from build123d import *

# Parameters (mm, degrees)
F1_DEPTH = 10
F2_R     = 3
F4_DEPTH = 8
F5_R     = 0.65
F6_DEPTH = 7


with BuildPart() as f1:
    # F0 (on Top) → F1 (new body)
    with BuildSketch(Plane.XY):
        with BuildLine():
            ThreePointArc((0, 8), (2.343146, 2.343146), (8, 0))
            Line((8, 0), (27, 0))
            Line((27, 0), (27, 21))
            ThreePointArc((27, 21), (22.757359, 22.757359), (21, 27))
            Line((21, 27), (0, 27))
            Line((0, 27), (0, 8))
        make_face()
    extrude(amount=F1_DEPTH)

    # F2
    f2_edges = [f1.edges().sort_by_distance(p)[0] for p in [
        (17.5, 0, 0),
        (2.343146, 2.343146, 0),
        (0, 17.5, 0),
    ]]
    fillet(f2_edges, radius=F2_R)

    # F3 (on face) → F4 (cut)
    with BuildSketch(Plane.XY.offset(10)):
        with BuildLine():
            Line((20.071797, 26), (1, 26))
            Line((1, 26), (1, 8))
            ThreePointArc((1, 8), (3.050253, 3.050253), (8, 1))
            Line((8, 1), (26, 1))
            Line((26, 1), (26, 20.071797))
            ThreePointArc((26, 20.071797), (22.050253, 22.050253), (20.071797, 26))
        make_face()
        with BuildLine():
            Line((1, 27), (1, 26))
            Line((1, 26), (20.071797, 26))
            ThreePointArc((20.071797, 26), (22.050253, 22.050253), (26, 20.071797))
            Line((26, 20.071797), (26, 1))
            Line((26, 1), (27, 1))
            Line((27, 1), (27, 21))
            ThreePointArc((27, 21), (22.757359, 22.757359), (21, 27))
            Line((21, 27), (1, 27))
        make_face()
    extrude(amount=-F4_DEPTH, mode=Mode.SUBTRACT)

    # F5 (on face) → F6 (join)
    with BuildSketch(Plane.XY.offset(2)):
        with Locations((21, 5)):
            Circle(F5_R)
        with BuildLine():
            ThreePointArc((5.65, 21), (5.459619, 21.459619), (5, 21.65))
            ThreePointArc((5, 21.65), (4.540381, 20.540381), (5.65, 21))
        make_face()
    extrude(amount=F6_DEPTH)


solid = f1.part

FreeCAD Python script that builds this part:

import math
import FreeCAD as App
import Part
import Sketcher

V = App.Vector
Q = App.Units.Quantity


def edges_at(feature, points):
    """Names of the edges that pass closest to the given points."""
    edges = feature.Shape.Edges
    near = lambda p: min(range(len(edges)), key=lambda i: edges[i].distToShape(Part.Vertex(*p))[0])
    return sorted({f"Edge{near(p) + 1}" for p in points})

doc = App.newDocument("Part")
body = doc.addObject("PartDesign::Body", "Body")

sketch1 = doc.addObject("Sketcher::SketchObject", "Sketch")
body.addObject(sketch1)
sketch1.AttachmentSupport = (doc.XY_Plane, [""])
sketch1.MapMode = "FlatFace"
sketch1.addGeometry(Part.ArcOfCircle(Part.Circle(V(8, 8, 0), V(0, 0, 1), 8), math.radians(-180), math.radians(-90)), False)
sketch1.addGeometry(Part.LineSegment(V(8, 0, 0), V(27, 0, 0)), False)
sketch1.addGeometry(Part.LineSegment(V(27, 0, 0), V(27, 21, 0)), False)
sketch1.addGeometry(Part.ArcOfCircle(Part.Circle(V(27, 27, 0), V(0, 0, 1), 6), math.radians(180), math.radians(270)), False)
sketch1.addGeometry(Part.LineSegment(V(21, 27, 0), V(0, 27, 0)), False)
sketch1.addGeometry(Part.LineSegment(V(0, 27, 0), V(0, 8, 0)), False)
sketch1.addConstraint(Sketcher.Constraint("Tangent", 0, 2, 1, 1))
sketch1.addConstraint(Sketcher.Constraint("Coincident", 1, 2, 2, 1))
sketch1.addConstraint(Sketcher.Constraint("Coincident", 2, 2, 3, 2))
sketch1.addConstraint(Sketcher.Constraint("Coincident", 3, 1, 4, 1))
sketch1.addConstraint(Sketcher.Constraint("Coincident", 4, 2, 5, 1))
sketch1.addConstraint(Sketcher.Constraint("Tangent", 5, 2, 0, 1))
sketch1.addConstraint(Sketcher.Constraint("Horizontal", 1))
sketch1.addConstraint(Sketcher.Constraint("Vertical", 2))
sketch1.addConstraint(Sketcher.Constraint("Horizontal", 4))
sketch1.addConstraint(Sketcher.Constraint("Vertical", 5))
sketch1.addConstraint(Sketcher.Constraint("PointOnObject", 0, 2, -1))
sketch1.addConstraint(Sketcher.Constraint("PointOnObject", 4, 2, -2))
sketch1.addConstraint(Sketcher.Constraint("Vertical", 3, 3, 1, 2))
sketch1.addConstraint(Sketcher.Constraint("Equal", 4, 2))
sketch1.addConstraint(Sketcher.Constraint("Equal", 1, 5))
sketch1.addConstraint(Sketcher.Constraint("Radius", 0, Q("8.000001 mm")))
sketch1.addConstraint(Sketcher.Constraint("Radius", 3, Q("5.999999 mm")))
sketch1.addConstraint(Sketcher.Constraint("DistanceX", 1, 1, 1, 2, Q("19 mm")))
pad1 = doc.addObject("PartDesign::Pad", "Pad")
body.addObject(pad1)
pad1.Profile = sketch1
pad1.Length = 10
doc.recompute()

fillet = doc.addObject("PartDesign::Fillet", "Fillet")
body.addObject(fillet)
fillet.Base = (pad1, edges_at(pad1, [(17.5, 0, 0), (2.343, 2.343, 0), (0, 17.5, 0)]))
fillet.Radius = 3

sketch2 = doc.addObject("Sketcher::SketchObject", "Sketch001")
body.addObject(sketch2)
sketch2.AttachmentSupport = (doc.XY_Plane, [""])
sketch2.MapMode = "FlatFace"
sketch2.AttachmentOffset = App.Placement(V(0, 0, 10), App.Rotation())
sketch2.addGeometry(Part.ArcOfCircle(Part.Circle(V(8, 8, 0), V(0, 0, 1), 7), math.radians(-180), math.radians(-90)), False)
sketch2.addGeometry(Part.LineSegment(V(8, 1, 0), V(27, 1, 0)), False)
sketch2.addGeometry(Part.LineSegment(V(27, 1, 0), V(27, 21, 0)), False)
sketch2.addGeometry(Part.ArcOfCircle(Part.Circle(V(27, 27, 0), V(0, 0, 1), 6), math.radians(180), math.radians(270)), False)
sketch2.addGeometry(Part.LineSegment(V(21, 27, 0), V(1, 27, 0)), False)
sketch2.addGeometry(Part.LineSegment(V(1, 27, 0), V(1, 8, 0)), False)
sketch2.addConstraint(Sketcher.Constraint("Tangent", 0, 2, 1, 1))
sketch2.addConstraint(Sketcher.Constraint("Coincident", 1, 2, 2, 1))
sketch2.addConstraint(Sketcher.Constraint("Coincident", 2, 2, 3, 2))
sketch2.addConstraint(Sketcher.Constraint("Coincident", 3, 1, 4, 1))
sketch2.addConstraint(Sketcher.Constraint("Coincident", 4, 2, 5, 1))
sketch2.addConstraint(Sketcher.Constraint("Tangent", 5, 2, 0, 1))
sketch2.addConstraint(Sketcher.Constraint("Horizontal", 1))
sketch2.addConstraint(Sketcher.Constraint("Vertical", 2))
sketch2.addConstraint(Sketcher.Constraint("Horizontal", 4))
sketch2.addConstraint(Sketcher.Constraint("Vertical", 5))
sketch2.addConstraint(Sketcher.Constraint("Vertical", 3, 3, 1, 2))
sketch2.addConstraint(Sketcher.Constraint("Equal", 4, 2))
sketch2.addConstraint(Sketcher.Constraint("Equal", 1, 5))
sketch2.addConstraint(Sketcher.Constraint("Radius", 0, Q("7.000002 mm")))
sketch2.addConstraint(Sketcher.Constraint("Radius", 3, Q("5.999999 mm")))
sketch2.addConstraint(Sketcher.Constraint("DistanceX", 1, 1, 1, 2, Q("19 mm")))
sketch2.addConstraint(Sketcher.Constraint("DistanceX", -1, 1, 0, 3, Q("8.000002 mm")))
sketch2.addConstraint(Sketcher.Constraint("DistanceY", -1, 1, 0, 3, Q("8.000002 mm")))
pocket1 = doc.addObject("PartDesign::Pocket", "Pocket")
body.addObject(pocket1)
pocket1.Profile = sketch2
pocket1.Length = 8

sketch3 = doc.addObject("Sketcher::SketchObject", "Sketch002")
body.addObject(sketch3)
sketch3.AttachmentSupport = (doc.XY_Plane, [""])
sketch3.MapMode = "FlatFace"
sketch3.AttachmentOffset = App.Placement(V(0, 0, 2), App.Rotation())
sketch3.addGeometry(Part.Circle(V(21, 5, 0), V(0, 0, 1), 0.7), False)
sketch3.addGeometry(Part.ArcOfCircle(Part.Circle(V(5, 21, 0), V(0, 0, 1), 0.7), math.radians(0), math.radians(90)), False)
sketch3.addGeometry(Part.ArcOfCircle(Part.Circle(V(5, 21, 0), V(0, 0, 1), 0.6), math.radians(90), math.radians(360)), False)
sketch3.addConstraint(Sketcher.Constraint("Coincident", 1, 1, 2, 2))
sketch3.addConstraint(Sketcher.Constraint("Coincident", 2, 1, 1, 2))
sketch3.addConstraint(Sketcher.Constraint("Equal", 0, 1))
sketch3.addConstraint(Sketcher.Constraint("Equal", 1, 2))
sketch3.addConstraint(Sketcher.Constraint("Horizontal", 2, 3, 1, 1))
sketch3.addConstraint(Sketcher.Constraint("Vertical", 1, 3, 2, 1))
sketch3.addConstraint(Sketcher.Constraint("Diameter", 0, Q("1.3 mm")))
sketch3.addConstraint(Sketcher.Constraint("DistanceX", -1, 1, 0, 3, Q("21 mm")))
sketch3.addConstraint(Sketcher.Constraint("DistanceY", -1, 1, 0, 3, Q("5 mm")))
sketch3.addConstraint(Sketcher.Constraint("DistanceX", -1, 1, 1, 3, Q("4.999999 mm")))
sketch3.addConstraint(Sketcher.Constraint("DistanceY", -1, 1, 1, 3, Q("20.999999 mm")))
pad2 = doc.addObject("PartDesign::Pad", "Pad001")
body.addObject(pad2)
pad2.Profile = sketch3
pad2.Length = 7

doc.recompute()
